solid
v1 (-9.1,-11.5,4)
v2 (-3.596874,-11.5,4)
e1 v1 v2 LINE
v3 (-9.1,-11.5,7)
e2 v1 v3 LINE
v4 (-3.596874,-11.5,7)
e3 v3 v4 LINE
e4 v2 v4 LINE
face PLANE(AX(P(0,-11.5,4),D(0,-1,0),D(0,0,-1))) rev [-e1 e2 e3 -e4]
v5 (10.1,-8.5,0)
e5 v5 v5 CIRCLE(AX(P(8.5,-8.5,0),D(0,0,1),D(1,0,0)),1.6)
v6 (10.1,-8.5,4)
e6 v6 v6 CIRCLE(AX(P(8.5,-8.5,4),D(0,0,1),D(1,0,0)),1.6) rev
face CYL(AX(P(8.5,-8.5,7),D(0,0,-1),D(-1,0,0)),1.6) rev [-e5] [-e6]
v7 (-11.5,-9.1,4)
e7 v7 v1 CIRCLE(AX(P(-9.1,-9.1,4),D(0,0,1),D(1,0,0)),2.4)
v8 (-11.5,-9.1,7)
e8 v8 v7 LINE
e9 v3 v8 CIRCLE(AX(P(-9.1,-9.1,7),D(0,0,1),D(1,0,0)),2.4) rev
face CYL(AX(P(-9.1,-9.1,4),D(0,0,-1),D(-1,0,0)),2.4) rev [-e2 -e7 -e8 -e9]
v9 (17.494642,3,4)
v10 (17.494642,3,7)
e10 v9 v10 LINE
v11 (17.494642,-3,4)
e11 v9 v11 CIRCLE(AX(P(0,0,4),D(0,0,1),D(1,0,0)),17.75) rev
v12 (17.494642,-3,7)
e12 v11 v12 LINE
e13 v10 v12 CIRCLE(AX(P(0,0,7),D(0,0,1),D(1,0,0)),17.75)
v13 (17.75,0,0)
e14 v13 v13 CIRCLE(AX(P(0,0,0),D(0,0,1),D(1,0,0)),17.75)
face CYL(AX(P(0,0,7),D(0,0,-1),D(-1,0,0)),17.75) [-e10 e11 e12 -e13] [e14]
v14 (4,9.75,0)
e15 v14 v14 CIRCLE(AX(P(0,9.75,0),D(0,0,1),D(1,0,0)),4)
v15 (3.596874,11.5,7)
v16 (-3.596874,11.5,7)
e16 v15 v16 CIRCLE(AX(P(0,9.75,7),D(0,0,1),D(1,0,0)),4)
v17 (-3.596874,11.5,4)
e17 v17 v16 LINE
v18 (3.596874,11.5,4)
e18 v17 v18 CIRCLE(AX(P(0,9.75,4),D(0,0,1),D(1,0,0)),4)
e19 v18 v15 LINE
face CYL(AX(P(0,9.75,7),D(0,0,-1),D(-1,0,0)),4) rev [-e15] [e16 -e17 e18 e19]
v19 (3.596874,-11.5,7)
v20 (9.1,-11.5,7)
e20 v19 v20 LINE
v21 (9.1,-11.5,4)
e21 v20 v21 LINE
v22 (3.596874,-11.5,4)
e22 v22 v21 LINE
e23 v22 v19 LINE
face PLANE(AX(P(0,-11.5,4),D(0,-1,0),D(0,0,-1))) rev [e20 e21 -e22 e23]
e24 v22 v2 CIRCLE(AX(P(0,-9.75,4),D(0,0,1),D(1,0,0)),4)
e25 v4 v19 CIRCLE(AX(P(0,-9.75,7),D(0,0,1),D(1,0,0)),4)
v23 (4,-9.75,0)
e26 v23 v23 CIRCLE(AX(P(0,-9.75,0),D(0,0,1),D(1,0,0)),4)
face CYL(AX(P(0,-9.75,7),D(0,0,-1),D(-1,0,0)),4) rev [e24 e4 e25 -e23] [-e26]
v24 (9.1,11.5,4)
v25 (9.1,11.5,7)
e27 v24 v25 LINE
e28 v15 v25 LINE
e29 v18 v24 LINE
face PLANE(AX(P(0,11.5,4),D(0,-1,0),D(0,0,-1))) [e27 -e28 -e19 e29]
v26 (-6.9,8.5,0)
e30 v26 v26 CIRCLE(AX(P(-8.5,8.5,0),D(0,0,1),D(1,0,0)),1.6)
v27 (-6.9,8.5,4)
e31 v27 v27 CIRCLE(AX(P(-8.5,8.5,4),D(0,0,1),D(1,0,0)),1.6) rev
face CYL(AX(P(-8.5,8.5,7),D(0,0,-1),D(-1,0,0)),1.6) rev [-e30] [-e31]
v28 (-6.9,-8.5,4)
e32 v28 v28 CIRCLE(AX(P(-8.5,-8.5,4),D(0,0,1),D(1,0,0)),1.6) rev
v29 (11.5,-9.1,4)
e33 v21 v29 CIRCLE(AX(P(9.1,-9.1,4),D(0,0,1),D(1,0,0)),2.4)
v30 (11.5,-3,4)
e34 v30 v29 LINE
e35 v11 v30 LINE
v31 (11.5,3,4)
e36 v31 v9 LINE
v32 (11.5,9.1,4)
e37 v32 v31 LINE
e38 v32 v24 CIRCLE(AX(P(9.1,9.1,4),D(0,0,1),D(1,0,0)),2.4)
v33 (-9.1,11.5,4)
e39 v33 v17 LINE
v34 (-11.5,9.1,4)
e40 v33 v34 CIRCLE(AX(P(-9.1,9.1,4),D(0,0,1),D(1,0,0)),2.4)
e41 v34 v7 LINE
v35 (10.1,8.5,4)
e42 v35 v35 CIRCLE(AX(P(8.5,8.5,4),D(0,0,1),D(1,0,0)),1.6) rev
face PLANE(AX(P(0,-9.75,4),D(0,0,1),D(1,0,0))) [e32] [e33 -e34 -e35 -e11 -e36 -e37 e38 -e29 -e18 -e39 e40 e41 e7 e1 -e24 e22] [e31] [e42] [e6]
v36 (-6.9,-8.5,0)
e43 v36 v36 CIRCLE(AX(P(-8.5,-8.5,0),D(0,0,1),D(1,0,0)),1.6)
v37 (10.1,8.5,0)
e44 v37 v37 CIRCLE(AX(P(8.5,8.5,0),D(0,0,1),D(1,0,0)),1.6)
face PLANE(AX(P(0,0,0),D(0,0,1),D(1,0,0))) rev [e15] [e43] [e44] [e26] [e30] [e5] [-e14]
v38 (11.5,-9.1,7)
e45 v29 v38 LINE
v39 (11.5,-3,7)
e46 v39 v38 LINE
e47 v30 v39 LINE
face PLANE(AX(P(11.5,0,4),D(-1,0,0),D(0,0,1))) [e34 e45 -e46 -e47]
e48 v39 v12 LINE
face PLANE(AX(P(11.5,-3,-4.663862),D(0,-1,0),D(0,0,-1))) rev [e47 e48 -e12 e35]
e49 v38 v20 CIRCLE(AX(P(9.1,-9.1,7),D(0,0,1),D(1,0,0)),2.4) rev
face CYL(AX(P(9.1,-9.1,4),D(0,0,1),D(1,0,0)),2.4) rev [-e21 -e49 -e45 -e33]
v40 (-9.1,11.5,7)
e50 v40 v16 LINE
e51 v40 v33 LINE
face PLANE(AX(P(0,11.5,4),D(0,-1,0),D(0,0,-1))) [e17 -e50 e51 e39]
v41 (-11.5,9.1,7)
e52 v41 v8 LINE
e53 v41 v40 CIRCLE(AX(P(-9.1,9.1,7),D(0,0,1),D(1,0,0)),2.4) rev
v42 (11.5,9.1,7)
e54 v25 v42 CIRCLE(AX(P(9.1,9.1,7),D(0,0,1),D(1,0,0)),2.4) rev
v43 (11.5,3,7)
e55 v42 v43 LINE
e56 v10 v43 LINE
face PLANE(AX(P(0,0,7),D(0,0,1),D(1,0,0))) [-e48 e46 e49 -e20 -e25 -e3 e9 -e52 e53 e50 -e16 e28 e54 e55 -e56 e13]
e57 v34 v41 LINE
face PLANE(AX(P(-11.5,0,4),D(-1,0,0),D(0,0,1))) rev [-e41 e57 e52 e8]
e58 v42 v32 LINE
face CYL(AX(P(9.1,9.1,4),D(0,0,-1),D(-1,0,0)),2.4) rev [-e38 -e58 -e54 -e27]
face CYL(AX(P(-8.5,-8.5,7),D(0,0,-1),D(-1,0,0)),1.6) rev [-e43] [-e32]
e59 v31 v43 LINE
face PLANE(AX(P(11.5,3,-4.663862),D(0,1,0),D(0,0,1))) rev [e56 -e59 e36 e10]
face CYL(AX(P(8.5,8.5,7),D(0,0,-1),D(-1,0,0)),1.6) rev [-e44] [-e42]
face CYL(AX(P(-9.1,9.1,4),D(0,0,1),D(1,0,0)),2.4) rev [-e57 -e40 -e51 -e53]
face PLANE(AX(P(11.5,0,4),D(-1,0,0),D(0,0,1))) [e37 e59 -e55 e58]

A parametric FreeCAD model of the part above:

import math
import FreeCAD as App
import Part
import Sketcher
Q = App.Units.Quantity


def edges_at(feature, points):
    """Names of the edges that pass closest to the given points."""
    edges = feature.Shape.Edges
    near = lambda p: min(range(len(edges)), key=lambda i: edges[i].distToShape(Part.Vertex(*p))[0])
    return sorted({f"Edge{near(p) + 1}" for p in points})


def add_polygon(sketch, points):
    """Adds a closed chain of lines whose ends are joined by coincident constraints."""
    first, n = sketch.GeometryCount, len(points)
    for a, b in zip(points, points[1:] + points[:1]):
        sketch.addGeometry(Part.LineSegment(App.Vector(*a, 0), App.Vector(*b, 0)), False)
    for i in range(n):
        sketch.addConstraint(Sketcher.Constraint("Coincident", first + i, 2, first + (i + 1) % n, 1))

doc = App.newDocument("Part")
body = doc.addObject("PartDesign::Body", "Body")

sketch1 = body.newObject("Sketcher::SketchObject", "Sketch")
sketch1.AttachmentSupport = (doc.getObject("XY_Plane"), [""])
sketch1.MapMode = "FlatFace"
sketch1.addGeometry(Part.Circle(App.Vector(0, 0, 0), App.Vector(0, 0, 1), 17.8), False)
sketch1.addGeometry(Part.Circle(App.Vector(0, -9.8, 0), App.Vector(0, 0, 1), 4), False)
sketch1.addGeometry(Part.Circle(App.Vector(0, 9.8, 0), App.Vector(0, 0, 1), 4), False)
sketch1.addConstraint(Sketcher.Constraint("Coincident", 0, 3, -1, 1))
sketch1.addConstraint(Sketcher.Constraint("Equal", 1, 2))
sketch1.addConstraint(Sketcher.Constraint("Symmetric", 1, 3, 2, 3, -1, 1))
sketch1.addConstraint(Sketcher.Constraint("PointOnObject", 1, 3, -2))
sketch1.addConstraint(Sketcher.Constraint("Diameter", 1, Q("8 mm")))
sketch1.addConstraint(Sketcher.Constraint("Diameter", 0, Q("35.5 mm")))
sketch1.addConstraint(Sketcher.Constraint("DistanceY", 1, 3, 2, 3, Q("19.5 mm")))
pad1 = body.newObject("PartDesign::Pad", "Pad")
pad1.Profile = sketch1
pad1.Length = 7

sketch2 = body.newObject("Sketcher::SketchObject", "Sketch001")
sketch2.AttachmentSupport = (doc.getObject("XY_Plane"), [""])
sketch2.MapMode = "FlatFace"
sketch2.AttachmentOffset = App.Placement(App.Vector(0, 0, 7), App.Rotation())
add_polygon(sketch2, [(-12, -12), (12, -12), (12, 12), (-12, 12)])
sketch2.addConstraint(Sketcher.Constraint("Horizontal", 0))
sketch2.addConstraint(Sketcher.Constraint("Vertical", 1))
sketch2.addConstraint(Sketcher.Constraint("Horizontal", 2))
sketch2.addConstraint(Sketcher.Constraint("Vertical", 3))
sketch2.addConstraint(Sketcher.Constraint("Symmetric", 0, 2, 2, 2, -1, 1))
sketch2.addConstraint(Sketcher.Constraint("Equal", 2, 1))
sketch2.addConstraint(Sketcher.Constraint("DistanceX", 0, 1, 0, 2, Q("23 mm")))
pocket1 = body.newObject("PartDesign::Pocket", "Pocket")
pocket1.Profile = sketch2
pocket1.Length = 3

sketch3 = body.newObject("Sketcher::SketchObject", "Sketch002")
sketch3.AttachmentSupport = (doc.getObject("XY_Plane"), [""])
sketch3.MapMode = "FlatFace"
sketch3.addGeometry(Part.Circle(App.Vector(8.5, -8.5, 0), App.Vector(0, 0, 1), 1.6), False)
sketch3.addGeometry(Part.Circle(App.Vector(8.5, 8.5, 0), App.Vector(0, 0, 1), 1.6), False)
sketch3.addGeometry(Part.Circle(App.Vector(-8.5, 8.5, 0), App.Vector(0, 0, 1), 1.6), False)
sketch3.addGeometry(Part.Circle(App.Vector(-8.5, -8.5, 0), App.Vector(0, 0, 1), 1.6), False)
sketch3.addConstraint(Sketcher.Constraint("Equal", 0, 1))
sketch3.addConstraint(Sketcher.Constraint("Equal", 1, 2))
sketch3.addConstraint(Sketcher.Constraint("Equal", 2, 3))
sketch3.addConstraint(Sketcher.Constraint("Symmetric", 0, 3, 2, 3, -1, 1))
sketch3.addConstraint(Sketcher.Constraint("Symmetric", 1, 3, 3, 3, -1, 1))
sketch3.addConstraint(Sketcher.Constraint("Symmetric", 1, 3, 2, 3, -2))
sketch3.addConstraint(Sketcher.Constraint("Diameter", 0, Q("3.2 mm")))
sketch3.addConstraint(Sketcher.Constraint("DistanceY", 0, 3, 1, 3, Q("17 mm")))
sketch3.addConstraint(Sketcher.Constraint("DistanceX", 2, 3, 1, 3, Q("17 mm")))
pocket2 = body.newObject("PartDesign::Pocket", "Pocket001")
pocket2.Profile = sketch3
pocket2.Type = "ThroughAll"
pocket2.Reversed = True

sketch4 = body.newObject("Sketcher::SketchObject", "Sketch003")
sketch4.AttachmentSupport = (doc.getObject("XY_Plane"), [""])
sketch4.MapMode = "FlatFace"
sketch4.AttachmentOffset = App.Placement(App.Vector(0, 0, 4), App.Rotation())
sketch4.addGeometry(Part.LineSegment(App.Vector(17, 3, 0), App.Vector(12, 3, 0)), False)
sketch4.addGeometry(Part.LineSegment(App.Vector(12, 3, 0), App.Vector(12, -3, 0)), False)
sketch4.addGeometry(Part.LineSegment(App.Vector(12, -3, 0), App.Vector(17, -3, 0)), False)
sketch4.addGeometry(Part.ArcOfCircle(Part.Circle(App.Vector(0, 0, 0), App.Vector(0, 0, 1), 18), math.radians(-9.73), math.radians(9.73)), False)
sketch4.addConstraint(Sketcher.Constraint("Coincident", 0, 2, 1, 1))
sketch4.addConstraint(Sketcher.Constraint("Coincident", 1, 2, 2, 1))
sketch4.addConstraint(Sketcher.Constraint("Coincident", 2, 2, 3, 1))
sketch4.addConstraint(Sketcher.Constraint("Coincident", 3, 2, 0, 1))
sketch4.addConstraint(Sketcher.Constraint("Horizontal", 0))
sketch4.addConstraint(Sketcher.Constraint("Vertical", 1))
sketch4.addConstraint(Sketcher.Constraint("Horizontal", 2))
sketch4.addConstraint(Sketcher.Constraint("Coincident", 3, 3, -1, 1))
sketch4.addConstraint(Sketcher.Constraint("Vertical", 2, 2, 3, 2))
sketch4.addConstraint(Sketcher.Constraint("DistanceY", 1, 2, 1, 1, Q("6 mm")))
sketch4.addConstraint(Sketcher.Constraint("Radius", 3, Q("17.75 mm")))
sketch4.addConstraint(Sketcher.Constraint("DistanceX", -1, 1, 0, 2, Q("11.5 mm")))
pocket3 = body.newObject("PartDesign::Pocket", "Pocket002")
pocket3.Profile = sketch4
pocket3.Length = 3
pocket3.Reversed = True
doc.recompute()

fillet = body.newObject("PartDesign::Fillet", "Fillet")
fillet.Base = (pocket3, edges_at(pocket3, [
    (-11.5, -11.5, 5.5),
    (-11.5, 11.5, 5.5),
    (11.5, 11.5, 5.5),
    (11.5, -11.5, 5.5),
]))
fillet.Radius = 2.4

doc.recompute()
